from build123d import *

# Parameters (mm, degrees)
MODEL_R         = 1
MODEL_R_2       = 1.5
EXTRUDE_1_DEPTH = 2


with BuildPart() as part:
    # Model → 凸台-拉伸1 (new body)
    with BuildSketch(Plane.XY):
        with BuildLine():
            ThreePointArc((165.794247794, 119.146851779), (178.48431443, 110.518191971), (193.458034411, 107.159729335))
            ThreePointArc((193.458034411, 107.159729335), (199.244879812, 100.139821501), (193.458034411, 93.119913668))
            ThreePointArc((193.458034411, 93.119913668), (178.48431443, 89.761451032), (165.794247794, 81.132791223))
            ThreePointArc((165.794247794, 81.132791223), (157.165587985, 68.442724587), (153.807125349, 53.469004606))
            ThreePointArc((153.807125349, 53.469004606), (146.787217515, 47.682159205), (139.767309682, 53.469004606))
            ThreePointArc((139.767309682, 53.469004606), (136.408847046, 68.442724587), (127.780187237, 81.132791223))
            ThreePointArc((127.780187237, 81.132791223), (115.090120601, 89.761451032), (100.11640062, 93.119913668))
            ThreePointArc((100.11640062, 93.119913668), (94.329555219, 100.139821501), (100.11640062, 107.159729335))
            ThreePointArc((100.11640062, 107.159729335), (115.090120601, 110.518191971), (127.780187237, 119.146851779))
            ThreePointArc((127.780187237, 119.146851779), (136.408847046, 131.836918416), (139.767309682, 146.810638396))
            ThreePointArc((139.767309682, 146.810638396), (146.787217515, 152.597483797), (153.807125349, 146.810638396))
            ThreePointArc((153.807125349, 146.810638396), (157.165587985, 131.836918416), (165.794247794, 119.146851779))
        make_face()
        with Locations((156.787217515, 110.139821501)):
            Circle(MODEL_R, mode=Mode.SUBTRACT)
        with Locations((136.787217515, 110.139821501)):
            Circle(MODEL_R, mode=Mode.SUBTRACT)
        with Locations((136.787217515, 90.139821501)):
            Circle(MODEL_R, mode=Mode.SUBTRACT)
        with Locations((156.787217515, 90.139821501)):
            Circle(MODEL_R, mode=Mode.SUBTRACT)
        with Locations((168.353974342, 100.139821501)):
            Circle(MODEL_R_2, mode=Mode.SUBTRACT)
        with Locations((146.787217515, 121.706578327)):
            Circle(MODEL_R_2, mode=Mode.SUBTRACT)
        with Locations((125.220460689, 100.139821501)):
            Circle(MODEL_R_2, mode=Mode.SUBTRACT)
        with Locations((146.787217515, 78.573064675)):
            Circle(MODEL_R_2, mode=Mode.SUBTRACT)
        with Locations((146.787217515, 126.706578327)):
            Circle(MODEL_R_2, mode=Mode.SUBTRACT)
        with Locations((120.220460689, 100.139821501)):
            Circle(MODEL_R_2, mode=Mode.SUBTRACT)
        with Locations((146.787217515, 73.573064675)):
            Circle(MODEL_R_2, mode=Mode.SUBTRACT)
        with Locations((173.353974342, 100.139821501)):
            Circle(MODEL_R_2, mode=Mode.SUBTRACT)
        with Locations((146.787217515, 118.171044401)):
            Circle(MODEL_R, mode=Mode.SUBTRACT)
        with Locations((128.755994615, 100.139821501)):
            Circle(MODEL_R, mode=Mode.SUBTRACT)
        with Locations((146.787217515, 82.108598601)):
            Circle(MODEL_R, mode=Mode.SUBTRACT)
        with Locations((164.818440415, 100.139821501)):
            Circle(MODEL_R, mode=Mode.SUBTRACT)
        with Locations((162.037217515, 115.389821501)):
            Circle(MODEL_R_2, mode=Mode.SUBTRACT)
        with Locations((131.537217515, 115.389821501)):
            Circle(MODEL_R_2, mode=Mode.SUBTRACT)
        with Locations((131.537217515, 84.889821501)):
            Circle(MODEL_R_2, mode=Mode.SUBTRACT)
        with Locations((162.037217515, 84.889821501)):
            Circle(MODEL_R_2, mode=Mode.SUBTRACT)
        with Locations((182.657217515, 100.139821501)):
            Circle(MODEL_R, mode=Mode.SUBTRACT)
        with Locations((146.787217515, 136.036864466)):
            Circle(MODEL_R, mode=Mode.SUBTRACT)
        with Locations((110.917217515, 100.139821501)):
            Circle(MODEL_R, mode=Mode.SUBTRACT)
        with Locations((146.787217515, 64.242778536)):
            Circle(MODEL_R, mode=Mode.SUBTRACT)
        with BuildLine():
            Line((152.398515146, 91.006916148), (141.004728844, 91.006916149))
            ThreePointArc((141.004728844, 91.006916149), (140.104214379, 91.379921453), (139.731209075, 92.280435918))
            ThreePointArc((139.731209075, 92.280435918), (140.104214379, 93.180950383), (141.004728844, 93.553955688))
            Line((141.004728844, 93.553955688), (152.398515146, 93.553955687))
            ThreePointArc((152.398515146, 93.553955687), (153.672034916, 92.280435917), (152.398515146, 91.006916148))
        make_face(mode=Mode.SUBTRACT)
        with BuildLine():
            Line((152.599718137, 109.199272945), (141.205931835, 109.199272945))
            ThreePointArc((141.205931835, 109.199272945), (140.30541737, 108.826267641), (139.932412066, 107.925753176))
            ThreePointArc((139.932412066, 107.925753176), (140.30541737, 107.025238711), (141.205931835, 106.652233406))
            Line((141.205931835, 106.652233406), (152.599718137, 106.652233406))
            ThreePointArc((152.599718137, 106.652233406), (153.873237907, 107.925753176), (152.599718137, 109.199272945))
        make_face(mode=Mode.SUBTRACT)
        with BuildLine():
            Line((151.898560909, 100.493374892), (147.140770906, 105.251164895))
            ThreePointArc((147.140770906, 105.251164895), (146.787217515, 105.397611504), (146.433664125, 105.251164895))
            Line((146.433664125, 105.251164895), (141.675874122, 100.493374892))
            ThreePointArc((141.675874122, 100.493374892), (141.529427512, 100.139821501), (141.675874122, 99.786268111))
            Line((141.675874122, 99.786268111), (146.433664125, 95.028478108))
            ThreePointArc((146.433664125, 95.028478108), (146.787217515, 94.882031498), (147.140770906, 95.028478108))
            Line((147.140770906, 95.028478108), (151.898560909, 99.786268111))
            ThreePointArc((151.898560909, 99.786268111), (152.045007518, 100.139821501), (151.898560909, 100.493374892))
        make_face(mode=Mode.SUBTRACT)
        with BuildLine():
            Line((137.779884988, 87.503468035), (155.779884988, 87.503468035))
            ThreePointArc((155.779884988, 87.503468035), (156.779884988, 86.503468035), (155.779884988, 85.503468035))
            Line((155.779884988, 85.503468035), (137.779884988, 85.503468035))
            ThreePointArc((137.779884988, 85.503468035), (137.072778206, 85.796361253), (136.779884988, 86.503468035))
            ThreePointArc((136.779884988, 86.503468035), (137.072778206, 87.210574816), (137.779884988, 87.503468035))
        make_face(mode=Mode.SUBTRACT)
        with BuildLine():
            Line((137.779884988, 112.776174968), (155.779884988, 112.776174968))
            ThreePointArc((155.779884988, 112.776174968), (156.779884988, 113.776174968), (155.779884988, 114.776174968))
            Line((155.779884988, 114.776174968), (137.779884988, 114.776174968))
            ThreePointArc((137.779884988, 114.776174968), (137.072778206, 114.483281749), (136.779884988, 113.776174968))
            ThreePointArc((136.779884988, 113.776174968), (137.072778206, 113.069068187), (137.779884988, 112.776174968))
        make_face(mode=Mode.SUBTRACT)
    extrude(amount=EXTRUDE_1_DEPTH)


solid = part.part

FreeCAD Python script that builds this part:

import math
import FreeCAD as App
import Part
import Sketcher

V = App.Vector

doc = App.newDocument("Part")
body = doc.addObject("PartDesign::Body", "Body")

sketch1 = body.newObject("Sketcher::SketchObject", "Sketch")
sketch1.AttachmentSupport = (doc.getObject("XY_Plane"), [""])
sketch1.MapMode = "FlatFace"
sketch1.addGeometry(Part.ArcOfCircle(Part.Circle(V(194.785626, 148.13823, 0), V(0, 0, 1), 41), math.radians(-135), math.radians(-91.855578)), False)
sketch1.addGeometry(Part.ArcOfCircle(Part.Circle(V(194.785626, 148.13823, 0), V(0, 0, 1), 41), math.radians(-178.144422), math.radians(-135)), False)
sketch1.addGeometry(Part.ArcOfCircle(Part.Circle(V(146.787218, 145.446205, 0), V(0, 0, 1), 7.151278), math.radians(10.999223), math.radians(169.000777)), False)
sketch1.addGeometry(Part.ArcOfCircle(Part.Circle(V(98.788809, 148.13823, 0), V(0, 0, 1), 41), math.radians(-45), math.radians(-1.855578)), False)
sketch1.addGeometry(Part.ArcOfCircle(Part.Circle(V(98.788809, 148.13823, 0), V(0, 0, 1), 41), math.radians(-88.144422), math.radians(-45)), False)
sketch1.addGeometry(Part.ArcOfCircle(Part.Circle(V(101.480834, 100.139822, 0), V(0, 0, 1), 7.151278), math.radians(100.999223), math.radians(259.000777)), False)
sketch1.addGeometry(Part.ArcOfCircle(Part.Circle(V(98.788809, 52.141413, 0), V(0, 0, 1), 41), math.radians(45), math.radians(88.144422)), False)
sketch1.addGeometry(Part.ArcOfCircle(Part.Circle(V(98.788809, 52.141413, 0), V(0, 0, 1), 41), math.radians(1.855578), math.radians(45)), False)
sketch1.addGeometry(Part.ArcOfCircle(Part.Circle(V(146.787218, 54.833438, 0), V(0, 0, 1), 7.151278), math.radians(-169.000777), math.radians(-10.999223)), False)
sketch1.addGeometry(Part.ArcOfCircle(Part.Circle(V(194.785626, 52.141413, 0), V(0, 0, 1), 41), math.radians(135), math.radians(178.144422)), False)
sketch1.addGeometry(Part.ArcOfCircle(Part.Circle(V(194.785626, 52.141413, 0), V(0, 0, 1), 41), math.radians(91.855578), math.radians(135)), False)
sketch1.addGeometry(Part.ArcOfCircle(Part.Circle(V(192.093601, 100.139822, 0), V(0, 0, 1), 7.151278), math.radians(-79.000777), math.radians(79.000777)), False)
sketch1.addGeometry(Part.Circle(V(162.037218, 84.889822, 0), V(0, 0, 1), 1.5), False)
sketch1.addGeometry(Part.Circle(V(156.787218, 90.139822, 0), V(0, 0, 1), 1), False)
sketch1.addGeometry(Part.Circle(V(146.787218, 64.242779, 0), V(0, 0, 1), 1), False)
sketch1.addGeometry(Part.Circle(V(146.787218, 73.573065, 0), V(0, 0, 1), 1.5), False)
sketch1.addGeometry(Part.Circle(V(146.787218, 78.573065, 0), V(0, 0, 1), 1.5), False)
sketch1.addGeometry(Part.Circle(V(146.787218, 82.108599, 0), V(0, 0, 1), 1), False)
sketch1.addGeometry(Part.LineSegment(V(137.779885, 87.503468, 0), V(155.779885, 87.503468, 0)), False)
sketch1.addGeometry(Part.ArcOfCircle(Part.Circle(V(155.779885, 86.503468, 0), V(0, 0, 1), 1), math.radians(-90), math.radians(90)), False)
sketch1.addGeometry(Part.LineSegment(V(155.779885, 85.503468, 0), V(137.779885, 85.503468, 0)), False)
sketch1.addGeometry(Part.ArcOfCircle(Part.Circle(V(137.779885, 86.503468, 0), V(0, 0, 1), 1), math.radians(180), math.radians(270)), False)
sketch1.addGeometry(Part.ArcOfCircle(Part.Circle(V(137.779885, 86.503468, 0), V(0, 0, 1), 1), math.radians(90), math.radians(180)), False)
sketch1.addGeometry(Part.Circle(V(131.537218, 84.889822, 0), V(0, 0, 1), 1.5), False)
sketch1.addGeometry(Part.Circle(V(136.787218, 90.139822, 0), V(0, 0, 1), 1), False)
sketch1.addGeometry(Part.LineSegment(V(152.398515, 91.006916, 0), V(141.004729, 91.006916, 0)), False)
sketch1.addGeometry(Part.ArcOfCircle(Part.Circle(V(141.004729, 92.280436, 0), V(0, 0, 1), 1.27352), math.radians(180), math.radians(270)), False)
sketch1.addGeometry(Part.ArcOfCircle(Part.Circle(V(141.004729, 92.280436, 0), V(0, 0, 1), 1.27352), math.radians(90), math.radians(180)), False)
sketch1.addGeometry(Part.LineSegment(V(141.004729, 93.553956, 0), V(152.398515, 93.553956, 0)), False)
sketch1.addGeometry(Part.ArcOfCircle(Part.Circle(V(152.398515, 92.280436, 0), V(0, 0, 1), 1.27352), math.radians(-90), math.radians(90)), False)
sketch1.addGeometry(Part.Circle(V(182.657218, 100.139822, 0), V(0, 0, 1), 1), False)
sketch1.addGeometry(Part.Circle(V(173.353974, 100.139822, 0), V(0, 0, 1), 1.5), False)
sketch1.addGeometry(Part.Circle(V(168.353974, 100.139822, 0), V(0, 0, 1), 1.5), False)
sketch1.addGeometry(Part.Circle(V(164.81844, 100.139822, 0), V(0, 0, 1), 1), False)
sketch1.addGeometry(Part.ArcOfCircle(Part.Circle(V(152.599718, 107.925753, 0), V(0, 0, 1), 1.27352), math.radians(-90), math.radians(90)), False)
sketch1.addGeometry(Part.LineSegment(V(152.599718, 106.652233, 0), V(141.205932, 106.652233, 0)), False)
sketch1.addGeometry(Part.ArcOfCircle(Part.Circle(V(141.205932, 107.925753, 0), V(0, 0, 1), 1.27352), math.radians(180), math.radians(270)), False)
sketch1.addGeometry(Part.ArcOfCircle(Part.Circle(V(141.205932, 107.925753, 0), V(0, 0, 1), 1.27352), math.radians(90), math.radians(180)), False)
sketch1.addGeometry(Part.LineSegment(V(141.205932, 109.199273, 0), V(152.599718, 109.199273, 0)), False)
sketch1.addGeometry(Part.Circle(V(156.787218, 110.139822, 0), V(0, 0, 1), 1), False)
sketch1.addGeometry(Part.Circle(V(162.037218, 115.389822, 0), V(0, 0, 1), 1.5), False)
sketch1.addGeometry(Part.ArcOfCircle(Part.Circle(V(151.545008, 100.139822, 0), V(0, 0, 1), 0.5), math.radians(-45), math.radians(45)), False)
sketch1.addGeometry(Part.LineSegment(V(151.898561, 99.786268, 0), V(147.140771, 95.028478, 0)), False)
sketch1.addGeometry(Part.ArcOfCircle(Part.Circle(V(146.787218, 95.382031, 0), V(0, 0, 1), 0.5), math.radians(-135), math.radians(-45)), False)
sketch1.addGeometry(Part.LineSegment(V(146.433664, 95.028478, 0), V(141.675874, 99.786268, 0)), False)
sketch1.addGeometry(Part.ArcOfCircle(Part.Circle(V(142.029428, 100.139822, 0), V(0, 0, 1), 0.5), math.radians(135), math.radians(225)), False)
sketch1.addGeometry(Part.LineSegment(V(141.675874, 100.493375, 0), V(146.433664, 105.251165, 0)), False)
sketch1.addGeometry(Part.ArcOfCircle(Part.Circle(V(146.787218, 104.897612, 0), V(0, 0, 1), 0.5), math.radians(45), math.radians(135)), False)
sketch1.addGeometry(Part.LineSegment(V(147.140771, 105.251165, 0), V(151.898561, 100.493375, 0)), False)
sketch1.addGeometry(Part.Circle(V(128.755995, 100.139822, 0), V(0, 0, 1), 1), False)
sketch1.addGeometry(Part.ArcOfCircle(Part.Circle(V(137.779885, 113.776175, 0), V(0, 0, 1), 1), math.radians(180), math.radians(270)), False)
sketch1.addGeometry(Part.ArcOfCircle(Part.Circle(V(137.779885, 113.776175, 0), V(0, 0, 1), 1), math.radians(90), math.radians(180)), False)
sketch1.addGeometry(Part.LineSegment(V(137.779885, 114.776175, 0), V(155.779885, 114.776175, 0)), False)
sketch1.addGeometry(Part.ArcOfCircle(Part.Circle(V(155.779885, 113.776175, 0), V(0, 0, 1), 1), math.radians(-90), math.radians(90)), False)
sketch1.addGeometry(Part.LineSegment(V(155.779885, 112.776175, 0), V(137.779885, 112.776175, 0)), False)
sketch1.addGeometry(Part.Circle(V(146.787218, 118.171044, 0), V(0, 0, 1), 1), False)
sketch1.addGeometry(Part.Circle(V(136.787218, 110.139822, 0), V(0, 0, 1), 1), False)
sketch1.addGeometry(Part.Circle(V(131.537218, 115.389822, 0), V(0, 0, 1), 1.5), False)
sketch1.addGeometry(Part.Circle(V(125.220461, 100.139822, 0), V(0, 0, 1), 1.5), False)
sketch1.addGeometry(Part.Circle(V(120.220461, 100.139822, 0), V(0, 0, 1), 1.5), False)
sketch1.addGeometry(Part.Circle(V(110.917218, 100.139822, 0), V(0, 0, 1), 1), False)
sketch1.addGeometry(Part.Circle(V(146.787218, 121.706578, 0), V(0, 0, 1), 1.5), False)
sketch1.addGeometry(Part.Circle(V(146.787218, 126.706578, 0), V(0, 0, 1), 1.5), False)
sketch1.addGeometry(Part.Circle(V(146.787218, 136.036864, 0), V(0, 0, 1), 1), False)
sketch1.addConstraint(Sketcher.Constraint("Tangent", 0, 1, 1, 2))
sketch1.addConstraint(Sketcher.Constraint("Coincident", 1, 1, 2, 1))
sketch1.addConstraint(Sketcher.Constraint("Coincident", 2, 2, 3, 2))
sketch1.addConstraint(Sketcher.Constraint("Tangent", 3, 1, 4, 2))
sketch1.addConstraint(Sketcher.Constraint("Coincident", 4, 1, 5, 1))
sketch1.addConstraint(Sketcher.Constraint("Coincident", 5, 2, 6, 2))
sketch1.addConstraint(Sketcher.Constraint("Tangent", 6, 1, 7, 2))
sketch1.addConstraint(Sketcher.Constraint("Coincident", 7, 1, 8, 1))
sketch1.addConstraint(Sketcher.Constraint("Coincident", 8, 2, 9, 2))
sketch1.addConstraint(Sketcher.Constraint("Tangent", 9, 1, 10, 2))
sketch1.addConstraint(Sketcher.Constraint("Coincident", 10, 1, 11, 1))
sketch1.addConstraint(Sketcher.Constraint("Coincident", 11, 2, 0, 2))
sketch1.addConstraint(Sketcher.Constraint("Tangent", 18, 2, 19, 2))
sketch1.addConstraint(Sketcher.Constraint("Tangent", 19, 1, 20, 1))
sketch1.addConstraint(Sketcher.Constraint("Tangent", 20, 2, 21, 2))
sketch1.addConstraint(Sketcher.Constraint("Tangent", 21, 1, 22, 2))
sketch1.addConstraint(Sketcher.Constraint("Tangent", 22, 1, 18, 1))
sketch1.addConstraint(Sketcher.Constraint("Tangent", 25, 2, 26, 2))
sketch1.addConstraint(Sketcher.Constraint("Tangent", 26, 1, 27, 2))
sketch1.addConstraint(Sketcher.Constraint("Tangent", 27, 1, 28, 1))
sketch1.addConstraint(Sketcher.Constraint("Tangent", 28, 2, 29, 2))
sketch1.addConstraint(Sketcher.Constraint("Tangent", 29, 1, 25, 1))
sketch1.addConstraint(Sketcher.Constraint("Tangent", 34, 1, 35, 1))
sketch1.addConstraint(Sketcher.Constraint("Tangent", 35, 2, 36, 2))
sketch1.addConstraint(Sketcher.Constraint("Tangent", 36, 1, 37, 2))
sketch1.addConstraint(Sketcher.Constraint("Tangent", 37, 1, 38, 1))
sketch1.addConstraint(Sketcher.Constraint("Tangent", 38, 2, 34, 2))
sketch1.addConstraint(Sketcher.Constraint("Tangent", 41, 1, 42, 1))
sketch1.addConstraint(Sketcher.Constraint("Tangent", 42, 2, 43, 2))
sketch1.addConstraint(Sketcher.Constraint("Tangent", 43, 1, 44, 1))
sketch1.addConstraint(Sketcher.Constraint("Tangent", 44, 2, 45, 2))
sketch1.addConstraint(Sketcher.Constraint("Tangent", 45, 1, 46, 1))
sketch1.addConstraint(Sketcher.Constraint("Tangent", 46, 2, 47, 2))
sketch1.addConstraint(Sketcher.Constraint("Tangent", 47, 1, 48, 1))
sketch1.addConstraint(Sketcher.Constraint("Tangent", 48, 2, 41, 2))
sketch1.addConstraint(Sketcher.Constraint("Tangent", 50, 1, 51, 2))
sketch1.addConstraint(Sketcher.Constraint("Tangent", 51, 1, 52, 1))
sketch1.addConstraint(Sketcher.Constraint("Tangent", 52, 2, 53, 2))
sketch1.addConstraint(Sketcher.Constraint("Tangent", 53, 1, 54, 1))
sketch1.addConstraint(Sketcher.Constraint("Tangent", 54, 2, 50, 2))
sketch1.addConstraint(Sketcher.Constraint("Horizontal", 18))
sketch1.addConstraint(Sketcher.Constraint("Horizontal", 20))
sketch1.addConstraint(Sketcher.Constraint("Horizontal", 25))
sketch1.addConstraint(Sketcher.Constraint("Horizontal", 28))
sketch1.addConstraint(Sketcher.Constraint("Horizontal", 35))
sketch1.addConstraint(Sketcher.Constraint("Horizontal", 38))
sketch1.addConstraint(Sketcher.Constraint("Horizontal", 52))
sketch1.addConstraint(Sketcher.Constraint("Horizontal", 54))
sketch1.addConstraint(Sketcher.Constraint("Equal", 0, 1))
sketch1.addConstraint(Sketcher.Constraint("Equal", 1, 3))
sketch1.addConstraint(Sketcher.Constraint("Equal", 3, 4))
sketch1.addConstraint(Sketcher.Constraint("Equal", 2, 5))
sketch1.addConstraint(Sketcher.Constraint("Equal", 4, 6))
sketch1.addConstraint(Sketcher.Constraint("Equal", 6, 7))
sketch1.addConstraint(Sketcher.Constraint("Equal", 5, 8))
sketch1.addConstraint(Sketcher.Constraint("Equal", 7, 9))
sketch1.addConstraint(Sketcher.Constraint("Equal", 9, 10))
sketch1.addConstraint(Sketcher.Constraint("Equal", 8, 11))
sketch1.addConstraint(Sketcher.Constraint("Equal", 13, 14))
sketch1.addConstraint(Sketcher.Constraint("Equal", 12, 15))
sketch1.addConstraint(Sketcher.Constraint("Equal", 15, 16))
sketch1.addConstraint(Sketcher.Constraint("Equal", 14, 17))
sketch1.addConstraint(Sketcher.Constraint("Equal", 17, 19))
sketch1.addConstraint(Sketcher.Constraint("Equal", 19, 21))
sketch1.addConstraint(Sketcher.Constraint("Equal", 16, 23))
sketch1.addConstraint(Sketcher.Constraint("Equal", 22, 24))
sketch1.addConstraint(Sketcher.Constraint("Equal", 26, 27))
sketch1.addConstraint(Sketcher.Constraint("Equal", 24, 30))
sketch1.addConstraint(Sketcher.Constraint("Equal", 23, 31))
sketch1.addConstraint(Sketcher.Constraint("Equal", 31, 32))
sketch1.addConstraint(Sketcher.Constraint("Equal", 30, 33))
sketch1.addConstraint(Sketcher.Constraint("Equal", 29, 34))
sketch1.addConstraint(Sketcher.Constraint("Equal", 34, 36))
sketch1.addConstraint(Sketcher.Constraint("Equal", 33, 39))
sketch1.addConstraint(Sketcher.Constraint("Equal", 32, 40))
sketch1.addConstraint(Sketcher.Constraint("Equal", 41, 43))
sketch1.addConstraint(Sketcher.Constraint("Equal", 43, 45))
sketch1.addConstraint(Sketcher.Constraint("Equal", 45, 47))
sketch1.addConstraint(Sketcher.Constraint("Equal", 39, 49))
sketch1.addConstraint(Sketcher.Constraint("Equal", 49, 50))
sketch1.addConstraint(Sketcher.Constraint("Equal", 50, 51))
sketch1.addConstraint(Sketcher.Constraint("Equal", 53, 55))
sketch1.addConstraint(Sketcher.Constraint("Equal", 55, 56))
sketch1.addConstraint(Sketcher.Constraint("Equal", 40, 57))
sketch1.addConstraint(Sketcher.Constraint("Equal", 57, 58))
sketch1.addConstraint(Sketcher.Constraint("Equal", 58, 59))
sketch1.addConstraint(Sketcher.Constraint("Equal", 56, 60))
sketch1.addConstraint(Sketcher.Constraint("Equal", 59, 61))
sketch1.addConstraint(Sketcher.Constraint("Equal", 61, 62))
sketch1.addConstraint(Sketcher.Constraint("Equal", 60, 63))
sketch1.addConstraint(Sketcher.Constraint("Perpendicular", 42, 44))
sketch1.addConstraint(Sketcher.Constraint("Perpendicular", 44, 46))
sketch1.addConstraint(Sketcher.Constraint("Perpendicular", 46, 48))
sketch1.addConstraint(Sketcher.Constraint("Horizontal", 1, 3, 3, 3))
sketch1.addConstraint(Sketcher.Constraint("Horizontal", 7, 3, 9, 3))
sketch1.addConstraint(Sketcher.Constraint("Horizontal", 5, 3, 11, 3))
sketch1.addConstraint(Sketcher.Constraint("Horizontal", 12, 3, 23, 3))
sketch1.addConstraint(Sketcher.Constraint("Horizontal", 13, 3, 24, 3))
sketch1.addConstraint(Sketcher.Constraint("Horizontal", 11, 3, 30, 3))
sketch1.addConstraint(Sketcher.Constraint("Horizontal", 30, 3, 31, 3))
sketch1.addConstraint(Sketcher.Constraint("Horizontal", 31, 3, 32, 3))
sketch1.addConstraint(Sketcher.Constraint("Horizontal", 32, 3, 33, 3))
sketch1.addConstraint(Sketcher.Constraint("Horizontal", 33, 3, 41, 3))
sketch1.addConstraint(Sketcher.Constraint("Horizontal", 41, 3, 45, 3))
sketch1.addConstraint(Sketcher.Constraint("Horizontal", 45, 3, 49, 3))
sketch1.addConstraint(Sketcher.Constraint("Horizontal", 39, 3, 56, 3))
sketch1.addConstraint(Sketcher.Constraint("Horizontal", 40, 3, 57, 3))
sketch1.addConstraint(Sketcher.Constraint("Horizontal", 49, 3, 58, 3))
sketch1.addConstraint(Sketcher.Constraint("Horizontal", 58, 3, 59, 3))
sketch1.addConstraint(Sketcher.Constraint("Horizontal", 59, 3, 60, 3))
sketch1.addConstraint(Sketcher.Constraint("Horizontal", 1, 1, 2, 2))
sketch1.addConstraint(Sketcher.Constraint("Horizontal", 0, 1, 3, 1))
sketch1.addConstraint(Sketcher.Constraint("Horizontal", 7, 1, 8, 2))
sketch1.addConstraint(Sketcher.Constraint("Horizontal", 6, 1, 9, 1))
sketch1.addConstraint(Sketcher.Constraint("Horizontal", 5, 2, 10, 1))
sketch1.addConstraint(Sketcher.Constraint("Horizontal", 4, 1, 11, 2))
sketch1.addConstraint(Sketcher.Constraint("Horizontal", 22, 3, 21, 1))
sketch1.addConstraint(Sketcher.Constraint("Horizontal", 29, 3, 26, 1))
sketch1.addConstraint(Sketcher.Constraint("Horizontal", 37, 3, 36, 1))
sketch1.addConstraint(Sketcher.Constraint("Horizontal", 42, 2, 43, 1))
sketch1.addConstraint(Sketcher.Constraint("Horizontal", 53, 3, 50, 1))
sketch1.addConstraint(Sketcher.Constraint("Vertical", 4, 3, 6, 3))
sketch1.addConstraint(Sketcher.Constraint("Vertical", 8, 3, 14, 3))
sketch1.addConstraint(Sketcher.Constraint("Vertical", 14, 3, 15, 3))
sketch1.addConstraint(Sketcher.Constraint("Vertical", 15, 3, 16, 3))
sketch1.addConstraint(Sketcher.Constraint("Vertical", 16, 3, 17, 3))
sketch1.addConstraint(Sketcher.Constraint("Vertical", 13, 3, 39, 3))
sketch1.addConstraint(Sketcher.Constraint("Vertical", 12, 3, 40, 3))
sketch1.addConstraint(Sketcher.Constraint("Vertical", 17, 3, 43, 3))
sketch1.addConstraint(Sketcher.Constraint("Vertical", 22, 3, 50, 3))
sketch1.addConstraint(Sketcher.Constraint("Vertical", 19, 3, 53, 3))
sketch1.addConstraint(Sketcher.Constraint("Vertical", 47, 3, 55, 3))
sketch1.addConstraint(Sketcher.Constraint("Vertical", 24, 3, 56, 3))
sketch1.addConstraint(Sketcher.Constraint("Vertical", 23, 3, 57, 3))
sketch1.addConstraint(Sketcher.Constraint("Vertical", 55, 3, 61, 3))
sketch1.addConstraint(Sketcher.Constraint("Vertical", 61, 3, 62, 3))
sketch1.addConstraint(Sketcher.Constraint("Vertical", 62, 3, 63, 3))
sketch1.addConstraint(Sketcher.Constraint("Vertical", 4, 1, 5, 2))
sketch1.addConstraint(Sketcher.Constraint("Vertical", 3, 1, 6, 1))
sketch1.addConstraint(Sketcher.Constraint("Vertical", 2, 2, 7, 1))
sketch1.addConstraint(Sketcher.Constraint("Equal", 28, 35))
sketch1.addConstraint(Sketcher.Constraint("Diameter", 12, 3.0))
sketch1.addConstraint(Sketcher.Constraint("Diameter", 13, 2.0))
sketch1.addConstraint(Sketcher.Constraint("Radius", 0, 41.0))
sketch1.addConstraint(Sketcher.Constraint("Radius", 41, 0.5))
sketch1.addConstraint(Sketcher.Constraint("DistanceX", 18, 1, 18, 2, 18.0))
sketch1.addConstraint(Sketcher.Constraint("Radius", 2, 7.151278))
sketch1.addConstraint(Sketcher.Constraint("Radius", 26, 1.27352))
sketch1.addConstraint(Sketcher.Constraint("DistanceX", -1, 1, 11, 3, 192.093601))
sketch1.addConstraint(Sketcher.Constraint("DistanceY", -1, 1, 17, 3, 82.108599))
sketch1.addConstraint(Sketcher.Constraint("DistanceX", -1, 1, 4, 1, 100.116401))
sketch1.addConstraint(Sketcher.Constraint("Distance", 42, 6.728531))
sketch1.addConstraint(Sketcher.Constraint("DistanceX", 25, 2, 25, 1, 11.393786))
sketch1.addConstraint(Sketcher.Constraint("DistanceY", -1, 1, 0, 3, 148.13823))
sketch1.addConstraint(Sketcher.Constraint("DistanceX", -1, 1, 3, 3, 98.788809))
sketch1.addConstraint(Sketcher.Constraint("DistanceY", -1, 1, 5, 3, 100.139822))
sketch1.addConstraint(Sketcher.Constraint("DistanceY", -1, 1, 12, 3, 84.889822))
sketch1.addConstraint(Sketcher.Constraint("DistanceY", -1, 1, 13, 3, 90.139822))
sketch1.addConstraint(Sketcher.Constraint("DistanceY", -1, 1, 14, 3, 64.242779))
sketch1.addConstraint(Sketcher.Constraint("DistanceY", -1, 1, 19, 3, 86.503468))
sketch1.addConstraint(Sketcher.Constraint("DistanceX", -1, 1, 26, 3, 141.004729))
sketch1.addConstraint(Sketcher.Constraint("DistanceX", -1, 1, 33, 3, 164.81844))
sketch1.addConstraint(Sketcher.Constraint("DistanceX", -1, 1, 34, 3, 152.599718))
sketch1.addConstraint(Sketcher.Constraint("DistanceY", -1, 1, 39, 3, 110.139822))
sketch1.addConstraint(Sketcher.Constraint("DistanceY", -1, 1, 40, 3, 115.389822))
sketch1.addConstraint(Sketcher.Constraint("DistanceX", -1, 1, 58, 3, 125.220461))
sketch1.addConstraint(Sketcher.Constraint("DistanceX", -1, 1, 59, 3, 120.220461))
sketch1.addConstraint(Sketcher.Constraint("DistanceY", -1, 1, 61, 3, 121.706578))
sketch1.addConstraint(Sketcher.Constraint("DistanceY", -1, 1, 62, 3, 126.706578))
sketch1.addConstraint(Sketcher.Constraint("DistanceY", -1, 1, 0, 1, 119.146852))
sketch1.addConstraint(Sketcher.Constraint("DistanceY", -1, 1, 1, 1, 146.810638))
sketch1.addConstraint(Sketcher.Constraint("DistanceX", -1, 1, 12, 3, 162.037218))
sketch1.addConstraint(Sketcher.Constraint("DistanceX", -1, 1, 13, 3, 156.787218))
sketch1.addConstraint(Sketcher.Constraint("DistanceY", -1, 1, 15, 3, 73.573065))
sketch1.addConstraint(Sketcher.Constraint("DistanceY", -1, 1, 16, 3, 78.573065))
sketch1.addConstraint(Sketcher.Constraint("DistanceX", -1, 1, 19, 3, 155.779885))
sketch1.addConstraint(Sketcher.Constraint("DistanceX", -1, 1, 23, 3, 131.537218))
sketch1.addConstraint(Sketcher.Constraint("DistanceX", -1, 1, 24, 3, 136.787218))
sketch1.addConstraint(Sketcher.Constraint("DistanceY", -1, 1, 26, 3, 92.280436))
sketch1.addConstraint(Sketcher.Constraint("DistanceX", -1, 1, 30, 3, 182.657218))
sketch1.addConstraint(Sketcher.Constraint("DistanceX", -1, 1, 31, 3, 173.353974))
sketch1.addConstraint(Sketcher.Constraint("DistanceX", -1, 1, 32, 3, 168.353974))
sketch1.addConstraint(Sketcher.Constraint("DistanceY", -1, 1, 34, 3, 107.925753))
sketch1.addConstraint(Sketcher.Constraint("DistanceX", -1, 1, 49, 3, 128.755995))
sketch1.addConstraint(Sketcher.Constraint("DistanceY", -1, 1, 50, 3, 113.776175))
sketch1.addConstraint(Sketcher.Constraint("DistanceY", -1, 1, 55, 3, 118.171044))
sketch1.addConstraint(Sketcher.Constraint("DistanceX", -1, 1, 60, 3, 110.917218))
sketch1.addConstraint(Sketcher.Constraint("DistanceY", -1, 1, 63, 3, 136.036864))
pad1 = body.newObject("PartDesign::Pad", "Pad")
pad1.Profile = sketch1
pad1.Length = 2

doc.recompute()
